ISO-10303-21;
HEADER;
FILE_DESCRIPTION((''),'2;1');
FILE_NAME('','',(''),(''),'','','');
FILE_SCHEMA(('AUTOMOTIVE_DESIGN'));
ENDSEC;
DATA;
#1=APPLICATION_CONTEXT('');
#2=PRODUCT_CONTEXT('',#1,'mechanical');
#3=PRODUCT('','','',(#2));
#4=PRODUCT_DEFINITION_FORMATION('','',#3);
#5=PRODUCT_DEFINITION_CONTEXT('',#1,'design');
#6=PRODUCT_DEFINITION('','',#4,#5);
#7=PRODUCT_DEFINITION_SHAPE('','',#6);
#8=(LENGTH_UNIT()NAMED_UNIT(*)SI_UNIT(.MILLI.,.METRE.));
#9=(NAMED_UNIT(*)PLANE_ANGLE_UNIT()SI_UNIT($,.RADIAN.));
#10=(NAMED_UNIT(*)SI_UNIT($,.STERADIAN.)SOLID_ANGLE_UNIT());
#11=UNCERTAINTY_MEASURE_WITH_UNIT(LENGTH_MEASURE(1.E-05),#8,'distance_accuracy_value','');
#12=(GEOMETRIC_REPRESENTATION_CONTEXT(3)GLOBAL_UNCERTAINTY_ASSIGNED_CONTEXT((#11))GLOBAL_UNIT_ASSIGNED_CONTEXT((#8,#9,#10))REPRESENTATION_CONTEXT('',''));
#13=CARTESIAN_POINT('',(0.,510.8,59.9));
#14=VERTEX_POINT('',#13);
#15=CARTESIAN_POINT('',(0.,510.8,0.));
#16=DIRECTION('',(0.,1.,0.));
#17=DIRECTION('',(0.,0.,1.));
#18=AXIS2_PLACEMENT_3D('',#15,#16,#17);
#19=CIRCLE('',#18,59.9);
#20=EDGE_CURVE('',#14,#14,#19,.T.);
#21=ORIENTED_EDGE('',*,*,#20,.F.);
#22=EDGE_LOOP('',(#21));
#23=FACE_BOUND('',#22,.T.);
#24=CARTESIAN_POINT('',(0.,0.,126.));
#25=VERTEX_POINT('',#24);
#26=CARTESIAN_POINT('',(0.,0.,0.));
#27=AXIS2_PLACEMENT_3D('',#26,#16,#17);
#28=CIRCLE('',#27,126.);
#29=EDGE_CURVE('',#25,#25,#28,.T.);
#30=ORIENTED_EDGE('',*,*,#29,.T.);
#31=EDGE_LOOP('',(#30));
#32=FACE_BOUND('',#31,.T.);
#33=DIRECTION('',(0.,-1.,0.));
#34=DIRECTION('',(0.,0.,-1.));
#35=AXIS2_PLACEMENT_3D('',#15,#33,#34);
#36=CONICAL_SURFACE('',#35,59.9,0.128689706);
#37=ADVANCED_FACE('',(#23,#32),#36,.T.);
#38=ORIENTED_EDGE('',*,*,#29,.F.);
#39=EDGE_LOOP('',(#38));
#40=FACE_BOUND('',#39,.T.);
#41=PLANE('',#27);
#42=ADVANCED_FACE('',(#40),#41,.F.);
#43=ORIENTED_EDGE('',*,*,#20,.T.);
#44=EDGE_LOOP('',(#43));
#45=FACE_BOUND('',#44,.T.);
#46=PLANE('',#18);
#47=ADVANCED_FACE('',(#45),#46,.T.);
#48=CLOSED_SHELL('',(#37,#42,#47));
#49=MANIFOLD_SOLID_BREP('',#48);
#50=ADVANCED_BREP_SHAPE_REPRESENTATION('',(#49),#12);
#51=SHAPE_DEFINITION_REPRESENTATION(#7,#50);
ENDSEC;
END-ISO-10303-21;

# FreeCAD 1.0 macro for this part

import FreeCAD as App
import Part
import Sketcher
from FreeCAD import Vector

doc = App.newDocument("Part")
body = doc.addObject("PartDesign::Body", "Body")

# Sketch on XZ plane
sketch1 = body.newObject("Sketcher::SketchObject", "Sketch")
sketch1.AttachmentSupport = (doc.getObject("XZ_Plane"), [""])
sketch1.MapMode = "FlatFace"
sketch1.addGeometry(Part.Circle(Vector(0, 0, 0), Vector(0, 0, 1), 126), False)
sketch1.addConstraint(Sketcher.Constraint("Coincident", 0, 3, -1, 1))
sketch1.addConstraint(Sketcher.Constraint("Diameter", 0, 252.0))

# Sketch on XZ plane
sketch2 = body.newObject("Sketcher::SketchObject", "Sketch001")
sketch2.AttachmentSupport = (doc.getObject("XZ_Plane"), [""])
sketch2.MapMode = "FlatFace"
sketch2.AttachmentOffset = App.Placement(Vector(0, 0, -510.8), App.Rotation())
sketch2.addGeometry(Part.Circle(Vector(0, 0, 0), Vector(0, 0, 1), 60), False)
sketch2.addConstraint(Sketcher.Constraint("Coincident", 0, 3, -1, 1))
sketch2.addConstraint(Sketcher.Constraint("Diameter", 0, 119.8))

additiveloft = body.newObject("PartDesign::AdditiveLoft", "AdditiveLoft")
additiveloft.Profile = sketch1
additiveloft.Sections = [sketch2]

doc.recompute()
